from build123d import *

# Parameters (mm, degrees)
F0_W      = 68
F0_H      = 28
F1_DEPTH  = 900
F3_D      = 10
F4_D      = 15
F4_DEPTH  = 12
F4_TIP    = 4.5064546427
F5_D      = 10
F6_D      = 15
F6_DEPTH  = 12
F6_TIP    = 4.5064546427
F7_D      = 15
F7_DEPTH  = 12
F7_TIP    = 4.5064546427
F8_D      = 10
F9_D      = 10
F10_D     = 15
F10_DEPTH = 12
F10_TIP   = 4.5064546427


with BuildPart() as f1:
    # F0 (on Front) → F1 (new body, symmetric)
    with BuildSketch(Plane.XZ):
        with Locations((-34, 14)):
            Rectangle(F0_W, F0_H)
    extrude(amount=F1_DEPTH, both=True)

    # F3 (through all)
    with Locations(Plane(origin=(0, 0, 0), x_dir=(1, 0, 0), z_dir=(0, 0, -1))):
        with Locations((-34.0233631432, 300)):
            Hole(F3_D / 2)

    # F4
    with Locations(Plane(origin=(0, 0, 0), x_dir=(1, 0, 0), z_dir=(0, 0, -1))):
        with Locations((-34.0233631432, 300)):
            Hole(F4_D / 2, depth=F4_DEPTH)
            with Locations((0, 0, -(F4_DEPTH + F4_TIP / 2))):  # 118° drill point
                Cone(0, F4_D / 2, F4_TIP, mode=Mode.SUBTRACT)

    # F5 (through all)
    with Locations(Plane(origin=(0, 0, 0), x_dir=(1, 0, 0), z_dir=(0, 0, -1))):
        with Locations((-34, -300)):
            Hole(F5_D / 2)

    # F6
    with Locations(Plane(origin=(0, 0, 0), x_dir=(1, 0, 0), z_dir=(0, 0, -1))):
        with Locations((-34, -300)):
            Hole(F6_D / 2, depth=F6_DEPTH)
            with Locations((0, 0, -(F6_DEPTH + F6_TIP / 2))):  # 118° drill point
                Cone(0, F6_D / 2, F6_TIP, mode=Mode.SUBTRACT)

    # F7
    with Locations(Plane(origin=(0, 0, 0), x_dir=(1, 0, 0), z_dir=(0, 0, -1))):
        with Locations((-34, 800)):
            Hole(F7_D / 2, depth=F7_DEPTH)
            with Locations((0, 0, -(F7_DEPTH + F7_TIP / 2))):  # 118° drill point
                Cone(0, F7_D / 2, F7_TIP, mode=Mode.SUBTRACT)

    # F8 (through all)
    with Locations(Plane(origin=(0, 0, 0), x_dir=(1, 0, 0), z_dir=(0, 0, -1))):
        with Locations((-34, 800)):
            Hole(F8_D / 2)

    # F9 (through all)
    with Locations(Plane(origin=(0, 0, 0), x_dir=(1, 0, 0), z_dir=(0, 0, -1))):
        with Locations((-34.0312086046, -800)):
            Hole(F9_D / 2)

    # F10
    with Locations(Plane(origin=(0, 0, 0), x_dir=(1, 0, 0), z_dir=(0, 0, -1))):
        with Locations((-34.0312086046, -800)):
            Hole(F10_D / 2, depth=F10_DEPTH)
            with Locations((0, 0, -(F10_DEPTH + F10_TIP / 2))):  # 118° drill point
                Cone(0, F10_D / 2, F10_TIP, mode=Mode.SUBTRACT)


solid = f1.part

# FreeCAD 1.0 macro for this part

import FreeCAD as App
import Part
import Sketcher

V = App.Vector


def add_polygon(sketch, points):
    """Adds a closed chain of lines whose ends are joined by coincident constraints."""
    first, n = sketch.GeometryCount, len(points)
    for a, b in zip(points, points[1:] + points[:1]):
        sketch.addGeometry(Part.LineSegment(App.Vector(*a, 0), App.Vector(*b, 0)), False)
    for i in range(n):
        sketch.addConstraint(Sketcher.Constraint("Coincident", first + i, 2, first + (i + 1) % n, 1))

doc = App.newDocument("Part")
body = doc.addObject("PartDesign::Body", "Body")

sketch1 = body.newObject("Sketcher::SketchObject", "Sketch")
sketch1.AttachmentSupport = (doc.getObject("XZ_Plane"), [""])
sketch1.MapMode = "FlatFace"
add_polygon(sketch1, [(-68, 28), (-68, 0), (0, 0), (0, 28)])
sketch1.addConstraint([
    Sketcher.Constraint("Vertical", 0),
    Sketcher.Constraint("Horizontal", 1),
    Sketcher.Constraint("Vertical", 2),
    Sketcher.Constraint("Horizontal", 3),
    Sketcher.Constraint("Coincident", 1, 2, -1, 1),
    Sketcher.Constraint("DistanceX", 1, 1, 1, 2, 68.0),
    Sketcher.Constraint("DistanceY", 0, 2, 0, 1, 28.0),
])
pad1 = body.newObject("PartDesign::Pad", "Pad")
pad1.Profile = sketch1
pad1.Length = 1800
pad1.Midplane = True

sketch2 = body.newObject("Sketcher::SketchObject", "Sketch001")
sketch2.AttachmentSupport = (doc.getObject("XY_Plane"), [""])
sketch2.MapMode = "FlatFace"
sketch2.addGeometry(Part.Circle(V(-34, -300, 0), V(0, 0, 1), 5), False)
sketch2.addConstraint([
    Sketcher.Constraint("Diameter", 0, 10.0),
    Sketcher.Constraint("DistanceY", 0, 3, -1, 1, 300.0),
    Sketcher.Constraint("DistanceX", 0, 3, -1, 1, 34.023363),
])
doc.recompute()
hole = body.newObject("PartDesign::Hole", "Hole")
hole.Profile = sketch2
hole.ThreadType = "None"
hole.Diameter = 10
hole.DepthType = "ThroughAll"
hole.Reversed = True

sketch3 = body.newObject("Sketcher::SketchObject", "Sketch002")
sketch3.AttachmentSupport = (doc.getObject("XY_Plane"), [""])
sketch3.MapMode = "FlatFace"
sketch3.addGeometry(Part.Circle(V(-34, -300, 0), V(0, 0, 1), 8), False)
sketch3.addConstraint([
    Sketcher.Constraint("Diameter", 0, 15.0),
    Sketcher.Constraint("DistanceY", 0, 3, -1, 1, 300.0),
    Sketcher.Constraint("DistanceX", 0, 3, -1, 1, 34.023363),
])
doc.recompute()
hole2 = body.newObject("PartDesign::Hole", "Hole001")
hole2.Profile = sketch3
hole2.ThreadType = "None"
hole2.Diameter = 15
hole2.DepthType = "Dimension"
hole2.Depth = 12
hole2.DrillPoint = "Angled"
hole2.DrillPointAngle = 118
hole2.Reversed = True

sketch4 = body.newObject("Sketcher::SketchObject", "Sketch003")
sketch4.AttachmentSupport = (doc.getObject("XY_Plane"), [""])
sketch4.MapMode = "FlatFace"
sketch4.addGeometry(Part.Circle(V(-34, 300, 0), V(0, 0, 1), 5), False)
sketch4.addConstraint([
    Sketcher.Constraint("Diameter", 0, 10.0),
    Sketcher.Constraint("DistanceX", 0, 3, -1, 1, 34.0),
    Sketcher.Constraint("DistanceY", -1, 1, 0, 3, 300.0),
])
doc.recompute()
hole3 = body.newObject("PartDesign::Hole", "Hole002")
hole3.Profile = sketch4
hole3.ThreadType = "None"
hole3.Diameter = 10
hole3.DepthType = "ThroughAll"
hole3.Reversed = True

sketch5 = body.newObject("Sketcher::SketchObject", "Sketch004")
sketch5.AttachmentSupport = (doc.getObject("XY_Plane"), [""])
sketch5.MapMode = "FlatFace"
sketch5.addGeometry(Part.Circle(V(-34, 300, 0), V(0, 0, 1), 8), False)
sketch5.addConstraint([
    Sketcher.Constraint("Diameter", 0, 15.0),
    Sketcher.Constraint("DistanceX", 0, 3, -1, 1, 34.0),
    Sketcher.Constraint("DistanceY", -1, 1, 0, 3, 300.0),
])
doc.recompute()
hole4 = body.newObject("PartDesign::Hole", "Hole003")
hole4.Profile = sketch5
hole4.ThreadType = "None"
hole4.Diameter = 15
hole4.DepthType = "Dimension"
hole4.Depth = 12
hole4.DrillPoint = "Angled"
hole4.DrillPointAngle = 118
hole4.Reversed = True

sketch6 = body.newObject("Sketcher::SketchObject", "Sketch005")
sketch6.AttachmentSupport = (doc.getObject("XY_Plane"), [""])
sketch6.MapMode = "FlatFace"
sketch6.addGeometry(Part.Circle(V(-34, -800, 0), V(0, 0, 1), 8), False)
sketch6.addConstraint([
    Sketcher.Constraint("Diameter", 0, 15.0),
    Sketcher.Constraint("DistanceX", 0, 3, -1, 1, 34.0),
    Sketcher.Constraint("DistanceY", 0, 3, -1, 1, 800.0),
])
doc.recompute()
hole5 = body.newObject("PartDesign::Hole", "Hole004")
hole5.Profile = sketch6
hole5.ThreadType = "None"
hole5.Diameter = 15
hole5.DepthType = "Dimension"
hole5.Depth = 12
hole5.DrillPoint = "Angled"
hole5.DrillPointAngle = 118
hole5.Reversed = True

sketch7 = body.newObject("Sketcher::SketchObject", "Sketch006")
sketch7.AttachmentSupport = (doc.getObject("XY_Plane"), [""])
sketch7.MapMode = "FlatFace"
sketch7.addGeometry(Part.Circle(V(-34, -800, 0), V(0, 0, 1), 5), False)
sketch7.addConstraint([
    Sketcher.Constraint("Diameter", 0, 10.0),
    Sketcher.Constraint("DistanceX", 0, 3, -1, 1, 34.0),
    Sketcher.Constraint("DistanceY", 0, 3, -1, 1, 800.0),
])
doc.recompute()
hole6 = body.newObject("PartDesign::Hole", "Hole005")
hole6.Profile = sketch7
hole6.ThreadType = "None"
hole6.Diameter = 10
hole6.DepthType = "ThroughAll"
hole6.Reversed = True

sketch8 = body.newObject("Sketcher::SketchObject", "Sketch007")
sketch8.AttachmentSupport = (doc.getObject("XY_Plane"), [""])
sketch8.MapMode = "FlatFace"
sketch8.addGeometry(Part.Circle(V(-34, 800, 0), V(0, 0, 1), 5), False)
sketch8.addConstraint([
    Sketcher.Constraint("Diameter", 0, 10.0),
    Sketcher.Constraint("DistanceY", -1, 1, 0, 3, 800.0),
    Sketcher.Constraint("DistanceX", 0, 3, -1, 1, 34.031209),
])
doc.recompute()
hole7 = body.newObject("PartDesign::Hole", "Hole006")
hole7.Profile = sketch8
hole7.ThreadType = "None"
hole7.Diameter = 10
hole7.DepthType = "ThroughAll"
hole7.Reversed = True

sketch9 = body.newObject("Sketcher::SketchObject", "Sketch008")
sketch9.AttachmentSupport = (doc.getObject("XY_Plane"), [""])
sketch9.MapMode = "FlatFace"
sketch9.addGeometry(Part.Circle(V(-34, 800, 0), V(0, 0, 1), 8), False)
sketch9.addConstraint([
    Sketcher.Constraint("Diameter", 0, 15.0),
    Sketcher.Constraint("DistanceY", -1, 1, 0, 3, 800.0),
    Sketcher.Constraint("DistanceX", 0, 3, -1, 1, 34.031209),
])
doc.recompute()
hole8 = body.newObject("PartDesign::Hole", "Hole007")
hole8.Profile = sketch9
hole8.ThreadType = "None"
hole8.Diameter = 15
hole8.DepthType = "Dimension"
hole8.Depth = 12
hole8.DrillPoint = "Angled"
hole8.DrillPointAngle = 118
hole8.Reversed = True

doc.recompute()
